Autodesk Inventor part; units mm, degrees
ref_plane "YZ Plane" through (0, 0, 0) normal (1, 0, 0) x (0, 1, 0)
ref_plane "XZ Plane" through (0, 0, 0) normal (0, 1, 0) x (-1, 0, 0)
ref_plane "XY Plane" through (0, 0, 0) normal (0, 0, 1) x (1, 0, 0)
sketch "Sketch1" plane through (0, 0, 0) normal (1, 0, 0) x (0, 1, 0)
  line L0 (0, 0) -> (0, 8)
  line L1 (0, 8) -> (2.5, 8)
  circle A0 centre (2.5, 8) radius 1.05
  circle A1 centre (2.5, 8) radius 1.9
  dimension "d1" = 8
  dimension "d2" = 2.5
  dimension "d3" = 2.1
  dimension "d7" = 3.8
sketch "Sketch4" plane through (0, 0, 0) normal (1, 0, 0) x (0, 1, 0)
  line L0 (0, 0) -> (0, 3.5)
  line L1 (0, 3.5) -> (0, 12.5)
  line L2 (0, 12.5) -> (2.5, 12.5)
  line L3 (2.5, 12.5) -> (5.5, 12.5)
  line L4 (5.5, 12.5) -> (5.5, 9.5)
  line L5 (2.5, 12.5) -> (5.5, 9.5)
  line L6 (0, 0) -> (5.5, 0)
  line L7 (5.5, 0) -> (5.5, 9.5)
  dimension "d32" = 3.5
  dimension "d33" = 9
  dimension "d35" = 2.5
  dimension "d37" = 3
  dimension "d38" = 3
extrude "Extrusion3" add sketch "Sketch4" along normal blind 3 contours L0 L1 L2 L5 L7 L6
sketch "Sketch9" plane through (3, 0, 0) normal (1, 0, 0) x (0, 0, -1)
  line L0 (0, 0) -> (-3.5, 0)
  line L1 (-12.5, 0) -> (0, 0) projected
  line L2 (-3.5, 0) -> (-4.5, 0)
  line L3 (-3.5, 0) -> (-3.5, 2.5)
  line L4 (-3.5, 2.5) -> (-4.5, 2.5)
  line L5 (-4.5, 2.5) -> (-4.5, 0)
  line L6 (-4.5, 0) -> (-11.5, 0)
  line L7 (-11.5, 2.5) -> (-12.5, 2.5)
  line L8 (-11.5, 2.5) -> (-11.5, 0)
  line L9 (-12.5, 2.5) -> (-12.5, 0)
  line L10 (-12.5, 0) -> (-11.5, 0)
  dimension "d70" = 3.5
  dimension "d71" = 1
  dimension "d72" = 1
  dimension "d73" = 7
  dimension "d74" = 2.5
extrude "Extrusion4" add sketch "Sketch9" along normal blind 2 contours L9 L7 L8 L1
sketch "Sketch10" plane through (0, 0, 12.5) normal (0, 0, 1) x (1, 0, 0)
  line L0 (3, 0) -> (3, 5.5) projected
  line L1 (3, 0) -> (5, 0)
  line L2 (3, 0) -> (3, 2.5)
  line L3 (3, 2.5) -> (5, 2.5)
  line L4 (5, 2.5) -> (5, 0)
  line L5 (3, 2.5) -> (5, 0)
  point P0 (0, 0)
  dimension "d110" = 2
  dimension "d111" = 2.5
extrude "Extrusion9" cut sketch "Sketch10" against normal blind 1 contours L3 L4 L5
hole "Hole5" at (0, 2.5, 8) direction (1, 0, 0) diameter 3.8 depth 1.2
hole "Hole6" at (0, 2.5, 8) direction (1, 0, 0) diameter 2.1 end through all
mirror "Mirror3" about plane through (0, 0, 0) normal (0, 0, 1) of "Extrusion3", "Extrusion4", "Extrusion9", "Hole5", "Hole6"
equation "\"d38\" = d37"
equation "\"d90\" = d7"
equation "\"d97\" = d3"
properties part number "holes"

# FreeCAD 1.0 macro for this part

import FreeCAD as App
import Part
import Sketcher

V = App.Vector
Q = App.Units.Quantity


def add_polygon(sketch, points):
    """Adds a closed chain of lines whose ends are joined by coincident constraints."""
    first, n = sketch.GeometryCount, len(points)
    for a, b in zip(points, points[1:] + points[:1]):
        sketch.addGeometry(Part.LineSegment(App.Vector(*a, 0), App.Vector(*b, 0)), False)
    for i in range(n):
        sketch.addConstraint(Sketcher.Constraint("Coincident", first + i, 2, first + (i + 1) % n, 1))

doc = App.newDocument("Part")
params = doc.addObject("Spreadsheet::Sheet", "Params")
for row, (alias, value) in enumerate([
    ("sketch1_width", "2.5 mm"),
    ("sketch1_height", "12.5 mm"),
    ("pad1_length", "3 mm"),
    ("sketch2_height", "1 mm"),
    ("sketch2_width", "2.5 mm"),
    ("pad2_length", "2 mm"),
    ("sketch3_width", "2 mm"),
    ("sketch3_height", "2.5 mm"),
    ("pocket1_length", "1 mm"),
    ("sketch4_diameter", "3.8 mm"),
    ("hole_diameter", "3.8 mm"),
    ("hole_depth", "1.2 mm"),
    ("sketch5_diameter", "2.1 mm"),
    ("hole2_diameter", "2.1 mm"),
], start=1):
    params.set(f"A{row}", alias)
    params.set(f"B{row}", "=" + value)
    params.setAlias(f"B{row}", alias)

body = doc.addObject("PartDesign::Body", "Body")

# Sketch on YZ plane
sketch1 = doc.addObject("Sketcher::SketchObject", "Sketch")
body.addObject(sketch1)
sketch1.AttachmentSupport = (doc.YZ_Plane, [""])
sketch1.MapMode = "FlatFace"
add_polygon(sketch1, [(0, 12.5), (0, 0), (5.5, 0), (5.5, 9.5), (2.5, 12.5)])  # lines 0-4
sketch1.addConstraint([
    Sketcher.Constraint("Vertical", 0),
    Sketcher.Constraint("Horizontal", 1),
    Sketcher.Constraint("Vertical", 2),
    Sketcher.Constraint("Horizontal", 4),
    Sketcher.Constraint("Coincident", 0, 2, -1, 1),
    Sketcher.Constraint("DistanceX", 4, 2, 4, 1, Q("2.5 mm")),
    Sketcher.Constraint("DistanceX", 3, 2, 2, 2, Q("3 mm")),
    Sketcher.Constraint("DistanceY", 2, 2, 3, 2, Q("3 mm")),
    Sketcher.Constraint("DistanceY", 0, 2, 0, 1, Q("12.5 mm")),
])
sketch1.setExpression("Constraints[10]", "Params.sketch1_width")
sketch1.setExpression("Constraints[13]", "Params.sketch1_height")
pad1 = doc.addObject("PartDesign::Pad", "Pad")
body.addObject(pad1)
pad1.Profile = sketch1
pad1.setExpression("Length", "Params.pad1_length")

# Sketch on YZ plane
sketch2 = doc.addObject("Sketcher::SketchObject", "Sketch001")
body.addObject(sketch2)
sketch2.AttachmentSupport = (doc.YZ_Plane, [""])
sketch2.MapMode = "FlatFace"
sketch2.AttachmentOffset = App.Placement(V(0, 0, 3), App.Rotation())
add_polygon(sketch2, [(2.5, 12.5), (0, 12.5), (0, 11.5), (2.5, 11.5)])  # lines 0-3
sketch2.addConstraint([
    Sketcher.Constraint("Horizontal", 0),
    Sketcher.Constraint("Vertical", 1),
    Sketcher.Constraint("Horizontal", 2),
    Sketcher.Constraint("Vertical", 3),
    Sketcher.Constraint("PointOnObject", 0, 2, -2),
    Sketcher.Constraint("DistanceY", 1, 2, 1, 1, Q("1 mm")),
    Sketcher.Constraint("DistanceX", 0, 2, 0, 1, Q("2.5 mm")),
    Sketcher.Constraint("DistanceY", -1, 1, 0, 2, Q("12.5 mm")),
])
sketch2.setExpression("Constraints[9]", "Params.sketch2_height")
sketch2.setExpression("Constraints[10]", "Params.sketch2_width")
pad2 = doc.addObject("PartDesign::Pad", "Pad001")
body.addObject(pad2)
pad2.Profile = sketch2
pad2.setExpression("Length", "Params.pad2_length")

# Sketch on XY plane
sketch3 = doc.addObject("Sketcher::SketchObject", "Sketch002")
body.addObject(sketch3)
sketch3.AttachmentSupport = (doc.XY_Plane, [""])
sketch3.MapMode = "FlatFace"
sketch3.AttachmentOffset = App.Placement(V(0, 0, 12.5), App.Rotation())
add_polygon(sketch3, [(5, 2.5), (3, 2.5), (5, 0)])  # lines 0-2
sketch3.addConstraint([
    Sketcher.Constraint("Horizontal", 0),
    Sketcher.Constraint("Vertical", 2),
    Sketcher.Constraint("PointOnObject", 1, 2, -1),
    Sketcher.Constraint("DistanceX", 0, 2, 0, 1, Q("2 mm")),
    Sketcher.Constraint("DistanceY", 2, 1, 2, 2, Q("2.5 mm")),
    Sketcher.Constraint("DistanceX", -1, 1, 0, 2, Q("3 mm")),
])
sketch3.setExpression("Constraints[6]", "Params.sketch3_width")
sketch3.setExpression("Constraints[7]", "Params.sketch3_height")
pocket1 = doc.addObject("PartDesign::Pocket", "Pocket")
body.addObject(pocket1)
pocket1.Profile = sketch3
pocket1.setExpression("Length", "Params.pocket1_length")

# Sketch on YZ plane
sketch4 = doc.addObject("Sketcher::SketchObject", "Sketch003")
body.addObject(sketch4)
sketch4.AttachmentSupport = (doc.YZ_Plane, [""])
sketch4.MapMode = "FlatFace"
sketch4.addGeometry(Part.Circle(V(2.5, 8, 0), V(0, 0, 1), 1.9), False)
sketch4.addConstraint([
    Sketcher.Constraint("Diameter", 0, Q("3.8 mm")),
    Sketcher.Constraint("DistanceY", -1, 1, 0, 3, Q("8 mm")),
    Sketcher.Constraint("DistanceX", -1, 1, 0, 3, Q("2.5 mm")),
])
sketch4.setExpression("Constraints[0]", "Params.sketch4_diameter")
doc.recompute()
hole = doc.addObject("PartDesign::Hole", "Hole")
body.addObject(hole)
hole.Profile = sketch4
hole.ThreadType = "None"
hole.setExpression("Diameter", "Params.hole_diameter")
hole.DepthType = "Dimension"
hole.setExpression("Depth", "Params.hole_depth")
hole.DrillPoint = "Flat"
hole.Reversed = True

# Sketch on YZ plane
sketch5 = doc.addObject("Sketcher::SketchObject", "Sketch004")
body.addObject(sketch5)
sketch5.AttachmentSupport = (doc.YZ_Plane, [""])
sketch5.MapMode = "FlatFace"
sketch5.addGeometry(Part.Circle(V(2.5, 8, 0), V(0, 0, 1), 1.05), False)
sketch5.addConstraint([
    Sketcher.Constraint("Diameter", 0, Q("2.1 mm")),
    Sketcher.Constraint("DistanceY", -1, 1, 0, 3, Q("8 mm")),
    Sketcher.Constraint("DistanceX", -1, 1, 0, 3, Q("2.5 mm")),
])
sketch5.setExpression("Constraints[0]", "Params.sketch5_diameter")
doc.recompute()
hole2 = doc.addObject("PartDesign::Hole", "Hole001")
body.addObject(hole2)
hole2.Profile = sketch5
hole2.ThreadType = "None"
hole2.setExpression("Diameter", "Params.hole2_diameter")
hole2.DepthType = "ThroughAll"
hole2.Reversed = True
doc.recompute()

mirrored = doc.addObject("PartDesign::Mirrored", "Mirrored")
body.addObject(mirrored)
mirrored.Originals = [pad1, pad2, pocket1, hole, hole2]
mirrored.MirrorPlane = (doc.XY_Plane, [""])
body.Tip = mirrored

doc.recompute()
